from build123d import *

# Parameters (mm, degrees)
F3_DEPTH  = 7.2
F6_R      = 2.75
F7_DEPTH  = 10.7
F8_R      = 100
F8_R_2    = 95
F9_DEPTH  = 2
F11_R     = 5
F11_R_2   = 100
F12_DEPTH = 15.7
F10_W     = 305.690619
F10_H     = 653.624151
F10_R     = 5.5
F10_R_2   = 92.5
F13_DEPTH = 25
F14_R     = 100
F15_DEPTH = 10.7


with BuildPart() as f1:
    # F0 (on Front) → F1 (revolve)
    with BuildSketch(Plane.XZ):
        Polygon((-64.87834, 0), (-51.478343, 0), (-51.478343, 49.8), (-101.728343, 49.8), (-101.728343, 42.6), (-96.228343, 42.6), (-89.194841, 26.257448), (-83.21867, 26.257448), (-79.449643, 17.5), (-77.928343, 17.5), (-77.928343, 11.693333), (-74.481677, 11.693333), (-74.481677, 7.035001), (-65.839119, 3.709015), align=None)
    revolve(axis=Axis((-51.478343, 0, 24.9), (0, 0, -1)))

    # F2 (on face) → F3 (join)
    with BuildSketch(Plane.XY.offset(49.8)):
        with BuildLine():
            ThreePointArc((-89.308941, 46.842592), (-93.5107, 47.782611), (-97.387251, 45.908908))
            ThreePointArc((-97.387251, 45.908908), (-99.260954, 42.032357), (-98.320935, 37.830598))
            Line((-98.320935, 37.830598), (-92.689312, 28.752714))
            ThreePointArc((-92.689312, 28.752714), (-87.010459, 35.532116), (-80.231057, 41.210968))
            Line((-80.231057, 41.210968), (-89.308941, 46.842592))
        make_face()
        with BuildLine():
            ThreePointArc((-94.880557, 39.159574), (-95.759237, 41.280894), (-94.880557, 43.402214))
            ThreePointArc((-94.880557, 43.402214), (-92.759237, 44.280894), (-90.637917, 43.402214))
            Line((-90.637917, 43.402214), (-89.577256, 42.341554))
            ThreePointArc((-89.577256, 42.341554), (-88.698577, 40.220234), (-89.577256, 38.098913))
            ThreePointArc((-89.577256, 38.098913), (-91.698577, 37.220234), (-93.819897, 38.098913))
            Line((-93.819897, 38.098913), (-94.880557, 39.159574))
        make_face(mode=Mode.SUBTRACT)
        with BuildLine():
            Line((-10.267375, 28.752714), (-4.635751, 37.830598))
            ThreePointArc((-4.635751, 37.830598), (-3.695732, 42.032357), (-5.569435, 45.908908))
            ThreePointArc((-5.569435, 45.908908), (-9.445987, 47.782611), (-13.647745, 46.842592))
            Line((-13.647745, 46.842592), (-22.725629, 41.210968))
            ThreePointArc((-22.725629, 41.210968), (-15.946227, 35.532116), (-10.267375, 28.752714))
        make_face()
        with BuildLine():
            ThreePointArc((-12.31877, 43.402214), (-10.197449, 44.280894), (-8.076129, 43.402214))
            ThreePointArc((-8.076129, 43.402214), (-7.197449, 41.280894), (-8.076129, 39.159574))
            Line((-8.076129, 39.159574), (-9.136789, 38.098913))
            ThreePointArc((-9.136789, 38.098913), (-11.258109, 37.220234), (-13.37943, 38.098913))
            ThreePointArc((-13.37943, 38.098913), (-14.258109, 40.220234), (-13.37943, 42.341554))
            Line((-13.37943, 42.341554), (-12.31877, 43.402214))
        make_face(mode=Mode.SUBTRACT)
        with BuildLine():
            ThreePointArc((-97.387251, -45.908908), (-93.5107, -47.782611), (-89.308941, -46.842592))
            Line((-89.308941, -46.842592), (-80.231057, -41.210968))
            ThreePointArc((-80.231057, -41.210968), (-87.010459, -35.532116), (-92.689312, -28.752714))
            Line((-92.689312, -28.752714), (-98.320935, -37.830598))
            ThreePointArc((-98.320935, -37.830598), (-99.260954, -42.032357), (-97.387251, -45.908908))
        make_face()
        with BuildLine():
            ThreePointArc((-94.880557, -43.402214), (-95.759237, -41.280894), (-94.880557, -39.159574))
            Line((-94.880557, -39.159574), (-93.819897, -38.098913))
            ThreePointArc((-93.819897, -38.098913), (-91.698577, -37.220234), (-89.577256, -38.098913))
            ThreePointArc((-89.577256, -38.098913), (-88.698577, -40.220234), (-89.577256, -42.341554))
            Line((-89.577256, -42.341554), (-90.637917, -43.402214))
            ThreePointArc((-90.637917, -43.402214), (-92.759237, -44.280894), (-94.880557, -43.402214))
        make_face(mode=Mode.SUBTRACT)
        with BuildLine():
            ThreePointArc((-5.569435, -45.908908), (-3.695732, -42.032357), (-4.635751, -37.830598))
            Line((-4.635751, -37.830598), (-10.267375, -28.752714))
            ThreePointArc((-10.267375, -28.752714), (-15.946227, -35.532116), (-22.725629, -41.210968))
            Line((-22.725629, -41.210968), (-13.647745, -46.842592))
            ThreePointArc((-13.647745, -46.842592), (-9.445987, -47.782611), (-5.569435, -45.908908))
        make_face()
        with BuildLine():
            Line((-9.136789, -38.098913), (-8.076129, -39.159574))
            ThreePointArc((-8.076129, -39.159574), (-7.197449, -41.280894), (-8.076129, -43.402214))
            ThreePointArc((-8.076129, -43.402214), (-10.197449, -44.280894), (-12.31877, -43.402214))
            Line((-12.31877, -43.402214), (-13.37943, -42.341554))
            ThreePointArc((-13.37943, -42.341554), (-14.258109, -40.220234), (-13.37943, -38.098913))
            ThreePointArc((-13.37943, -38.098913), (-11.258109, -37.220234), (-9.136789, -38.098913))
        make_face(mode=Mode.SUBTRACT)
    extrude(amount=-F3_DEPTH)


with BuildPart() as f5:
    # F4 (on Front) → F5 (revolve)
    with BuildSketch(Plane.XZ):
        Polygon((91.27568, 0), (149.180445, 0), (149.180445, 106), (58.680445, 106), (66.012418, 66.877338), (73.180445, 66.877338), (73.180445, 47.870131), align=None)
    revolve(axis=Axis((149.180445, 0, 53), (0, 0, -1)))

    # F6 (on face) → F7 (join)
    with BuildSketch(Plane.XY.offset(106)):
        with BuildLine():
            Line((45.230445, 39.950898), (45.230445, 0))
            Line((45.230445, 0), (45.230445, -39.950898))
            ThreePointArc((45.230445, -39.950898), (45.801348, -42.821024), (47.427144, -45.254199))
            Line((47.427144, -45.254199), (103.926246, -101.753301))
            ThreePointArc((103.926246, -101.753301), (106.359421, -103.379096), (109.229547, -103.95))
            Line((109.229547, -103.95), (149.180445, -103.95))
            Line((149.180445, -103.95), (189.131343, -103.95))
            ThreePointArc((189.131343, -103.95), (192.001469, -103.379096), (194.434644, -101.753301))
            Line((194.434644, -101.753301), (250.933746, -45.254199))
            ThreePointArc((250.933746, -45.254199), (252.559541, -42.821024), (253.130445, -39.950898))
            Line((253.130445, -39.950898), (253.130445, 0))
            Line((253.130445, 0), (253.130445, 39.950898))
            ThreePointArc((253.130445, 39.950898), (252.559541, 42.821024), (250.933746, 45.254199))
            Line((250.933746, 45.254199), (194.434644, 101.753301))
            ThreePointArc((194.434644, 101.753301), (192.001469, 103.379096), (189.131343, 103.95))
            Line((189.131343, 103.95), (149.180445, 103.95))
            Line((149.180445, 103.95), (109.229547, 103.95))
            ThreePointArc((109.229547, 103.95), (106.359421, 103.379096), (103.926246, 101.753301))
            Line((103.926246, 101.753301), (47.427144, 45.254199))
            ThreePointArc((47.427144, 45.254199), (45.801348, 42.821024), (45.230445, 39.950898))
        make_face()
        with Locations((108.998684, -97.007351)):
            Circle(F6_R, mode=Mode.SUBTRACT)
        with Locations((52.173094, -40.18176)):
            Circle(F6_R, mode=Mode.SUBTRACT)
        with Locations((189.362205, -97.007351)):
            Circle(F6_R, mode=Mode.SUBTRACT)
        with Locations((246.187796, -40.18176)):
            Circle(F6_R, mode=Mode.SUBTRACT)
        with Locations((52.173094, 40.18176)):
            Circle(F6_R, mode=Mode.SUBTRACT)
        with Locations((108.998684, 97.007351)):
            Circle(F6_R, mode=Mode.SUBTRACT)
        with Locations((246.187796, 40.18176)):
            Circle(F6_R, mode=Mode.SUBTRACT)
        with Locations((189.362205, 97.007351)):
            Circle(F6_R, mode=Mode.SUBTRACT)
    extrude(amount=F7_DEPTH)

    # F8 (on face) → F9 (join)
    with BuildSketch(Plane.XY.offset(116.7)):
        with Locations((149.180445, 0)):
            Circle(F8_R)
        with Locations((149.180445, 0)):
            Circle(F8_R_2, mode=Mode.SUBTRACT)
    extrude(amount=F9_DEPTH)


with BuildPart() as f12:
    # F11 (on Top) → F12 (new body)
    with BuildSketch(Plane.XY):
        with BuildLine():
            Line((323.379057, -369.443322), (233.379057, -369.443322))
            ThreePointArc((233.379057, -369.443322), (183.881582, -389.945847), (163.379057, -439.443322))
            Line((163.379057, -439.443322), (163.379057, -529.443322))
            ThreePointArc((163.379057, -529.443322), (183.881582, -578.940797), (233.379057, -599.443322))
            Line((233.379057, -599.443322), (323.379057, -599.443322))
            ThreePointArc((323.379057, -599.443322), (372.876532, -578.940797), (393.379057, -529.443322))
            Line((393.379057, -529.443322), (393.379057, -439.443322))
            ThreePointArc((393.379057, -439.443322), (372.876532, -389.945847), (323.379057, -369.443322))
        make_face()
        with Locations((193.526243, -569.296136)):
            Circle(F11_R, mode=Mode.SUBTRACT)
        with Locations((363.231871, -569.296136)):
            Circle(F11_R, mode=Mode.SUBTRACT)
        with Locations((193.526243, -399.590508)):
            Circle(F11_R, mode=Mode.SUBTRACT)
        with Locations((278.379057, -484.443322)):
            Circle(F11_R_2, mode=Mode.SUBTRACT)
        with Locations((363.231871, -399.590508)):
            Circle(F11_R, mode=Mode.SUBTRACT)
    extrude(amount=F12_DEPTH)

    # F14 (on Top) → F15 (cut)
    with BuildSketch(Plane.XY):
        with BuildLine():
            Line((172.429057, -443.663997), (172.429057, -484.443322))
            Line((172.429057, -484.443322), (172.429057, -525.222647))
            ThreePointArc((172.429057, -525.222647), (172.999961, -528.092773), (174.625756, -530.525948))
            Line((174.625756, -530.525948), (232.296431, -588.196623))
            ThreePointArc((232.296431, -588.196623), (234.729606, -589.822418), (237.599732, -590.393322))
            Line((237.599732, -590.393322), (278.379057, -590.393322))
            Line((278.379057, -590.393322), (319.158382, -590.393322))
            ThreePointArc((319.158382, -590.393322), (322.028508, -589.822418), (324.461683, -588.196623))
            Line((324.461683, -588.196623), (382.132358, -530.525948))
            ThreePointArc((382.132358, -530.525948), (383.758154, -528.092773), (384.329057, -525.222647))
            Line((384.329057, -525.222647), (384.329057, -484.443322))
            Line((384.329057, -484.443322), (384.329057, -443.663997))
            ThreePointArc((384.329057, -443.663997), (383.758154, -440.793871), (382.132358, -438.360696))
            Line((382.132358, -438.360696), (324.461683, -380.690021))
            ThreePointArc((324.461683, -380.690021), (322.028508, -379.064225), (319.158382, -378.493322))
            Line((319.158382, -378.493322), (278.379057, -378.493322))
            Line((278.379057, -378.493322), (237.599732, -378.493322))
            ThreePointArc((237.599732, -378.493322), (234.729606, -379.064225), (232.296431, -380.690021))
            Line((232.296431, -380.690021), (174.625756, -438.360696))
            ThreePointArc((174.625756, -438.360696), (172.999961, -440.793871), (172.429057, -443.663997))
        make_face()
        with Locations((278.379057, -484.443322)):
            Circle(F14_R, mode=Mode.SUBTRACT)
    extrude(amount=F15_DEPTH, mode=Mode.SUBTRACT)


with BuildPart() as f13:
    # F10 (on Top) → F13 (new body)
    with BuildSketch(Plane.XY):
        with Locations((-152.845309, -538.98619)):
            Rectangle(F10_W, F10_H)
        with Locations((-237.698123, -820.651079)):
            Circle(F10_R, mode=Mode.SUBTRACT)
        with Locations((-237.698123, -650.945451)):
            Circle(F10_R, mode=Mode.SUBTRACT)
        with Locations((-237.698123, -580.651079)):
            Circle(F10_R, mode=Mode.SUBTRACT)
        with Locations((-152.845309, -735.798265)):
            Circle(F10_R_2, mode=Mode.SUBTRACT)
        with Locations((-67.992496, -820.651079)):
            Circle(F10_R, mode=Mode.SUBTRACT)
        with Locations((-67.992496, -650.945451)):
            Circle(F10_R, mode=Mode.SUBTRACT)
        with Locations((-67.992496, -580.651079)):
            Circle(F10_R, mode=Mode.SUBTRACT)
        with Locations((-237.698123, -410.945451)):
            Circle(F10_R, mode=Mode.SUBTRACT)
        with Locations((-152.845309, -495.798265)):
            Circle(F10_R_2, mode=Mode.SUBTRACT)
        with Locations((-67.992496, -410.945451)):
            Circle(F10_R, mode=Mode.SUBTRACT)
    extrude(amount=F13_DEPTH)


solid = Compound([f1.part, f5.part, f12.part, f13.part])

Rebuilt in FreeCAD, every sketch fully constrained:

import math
import FreeCAD as App
import Part
import Sketcher

V = App.Vector


def add_polygon(sketch, points):
    """Adds a closed chain of lines whose ends are joined by coincident constraints."""
    first, n = sketch.GeometryCount, len(points)
    for a, b in zip(points, points[1:] + points[:1]):
        sketch.addGeometry(Part.LineSegment(App.Vector(*a, 0), App.Vector(*b, 0)), False)
    for i in range(n):
        sketch.addConstraint(Sketcher.Constraint("Coincident", first + i, 2, first + (i + 1) % n, 1))

doc = App.newDocument("Part")
body = doc.addObject("PartDesign::Body", "Body")

# Sketch on XZ plane
sketch1 = body.newObject("Sketcher::SketchObject", "Sketch")
sketch1.AttachmentSupport = (doc.getObject("XZ_Plane"), [""])
sketch1.MapMode = "FlatFace"
add_polygon(sketch1, [(-64.9, 0), (-51.5, 0), (-51.5, 49.8), (-101.7, 49.8), (-101.7, 42.6), (-96.2, 42.6), (-89.2, 26.3), (-83.2, 26.3), (-79.4, 17.5), (-77.9, 17.5), (-77.9, 11.7), (-74.5, 11.7), (-74.5, 7), (-65.8, 3.7)])  # lines 0-13
sketch1.addGeometry(Part.LineSegment(V(-51.5, 49.8, 0), V(-51.5, 0, 0)), True)  # axis
sketch1.addConstraint([
    Sketcher.Constraint("Horizontal", 0),
    Sketcher.Constraint("Vertical", 1),
    Sketcher.Constraint("Horizontal", 2),
    Sketcher.Constraint("Vertical", 3),
    Sketcher.Constraint("Horizontal", 4),
    Sketcher.Constraint("Horizontal", 6),
    Sketcher.Constraint("Horizontal", 8),
    Sketcher.Constraint("Vertical", 9),
    Sketcher.Constraint("Horizontal", 10),
    Sketcher.Constraint("Vertical", 11),
    Sketcher.Constraint("Vertical", 14),
    Sketcher.Constraint("Coincident", 14, 1, 1, 2),
    Sketcher.Constraint("PointOnObject", 0, 2, -1),
    Sketcher.Constraint("PointOnObject", 14, 2, -1),
    Sketcher.Constraint("Parallel", 5, 7),
    Sketcher.Constraint("DistanceX", 4, 1, 4, 2, 5.5),
    Sketcher.Constraint("DistanceY", 1, 1, 1, 2, 49.8),
    Sketcher.Constraint("DistanceY", 3, 2, 3, 1, 7.2),
    Sketcher.Constraint("DistanceX", 2, 2, 2, 1, 50.25),
    Sketcher.Constraint("DistanceY", -1, 1, 7, 2, 17.5),
    Sketcher.Constraint("DistanceX", 4, 2, 8, 2, 18.3),
    Sketcher.Constraint("DistanceX", 8, 1, 8, 2, 1.5213),
    Sketcher.Constraint("DistanceY", -1, 1, 11, 2, 7.035001),
    Sketcher.Constraint("DistanceX", 6, 1, 6, 2, 5.976171),
    Sketcher.Constraint("DistanceX", 4, 2, 5, 2, 7.033502),
    Sketcher.Constraint("DistanceX", 0, 1, 0, 2, 13.399997),
    Sketcher.Constraint("DistanceX", 10, 1, 10, 2, 3.446666),
    Sketcher.Constraint("DistanceY", 9, 2, 9, 1, 5.806667),
    Sketcher.Constraint("DistanceX", 5, 2, -1, 1, 89.194841),
    Sketcher.Constraint("DistanceX", 12, 2, -1, 1, 65.839119),
    Sketcher.Constraint("DistanceY", 12, 2, 10, 2, 7.984318),
])
revolution = body.newObject("PartDesign::Revolution", "Revolution")
revolution.Profile = sketch1
revolution.ReferenceAxis = (sketch1, ["Axis0"])
revolution.Angle = 360

# Sketch on XY plane
sketch2 = body.newObject("Sketcher::SketchObject", "Sketch001")
sketch2.AttachmentSupport = (doc.getObject("XY_Plane"), [""])
sketch2.MapMode = "FlatFace"
sketch2.AttachmentOffset = App.Placement(V(0, 0, 49.8), App.Rotation())
sketch2.addGeometry([
    Part.ArcOfCircle(Part.Circle(V(-92.759237, 41.280892, 0), V(0, 0, 1), 6.545002), math.radians(58.185898), math.radians(134.999987)),  # 0
    Part.ArcOfCircle(Part.Circle(V(-92.759235, 41.280894, 0), V(0, 0, 1), 6.545002), math.radians(135.000013), math.radians(211.814102)),  # 1
    Part.LineSegment(V(-98.320935, 37.830598, 0), V(-92.689312, 28.752714, 0)),  # 2
    Part.ArcOfCircle(Part.Circle(V(-51.478366, 0.00002, 0), V(0, 0, 1), 50.24997), math.radians(124.903306), math.radians(145.09669)),  # 3
    Part.LineSegment(V(-80.231057, 41.210968, 0), V(-89.308941, 46.842592, 0)),  # 4
    Part.LineSegment(V(-93.819897, 38.098913, 0), V(-94.880557, 39.159574, 0)),  # 5
    Part.ArcOfCircle(Part.Circle(V(-92.759239, 41.280894, 0), V(0, 0, 1), 2.999998), math.radians(134.999978), math.radians(225.000022)),  # 6
    Part.ArcOfCircle(Part.Circle(V(-92.759237, 41.280896, 0), V(0, 0, 1), 2.999998), math.radians(44.999978), math.radians(135.000022)),  # 7
    Part.LineSegment(V(-90.637917, 43.402214, 0), V(-89.577256, 42.341554, 0)),  # 8
    Part.ArcOfCircle(Part.Circle(V(-91.698579, 40.220233, 0), V(0, 0, 1), 3.000002), math.radians(-44.999967), math.radians(44.999967)),  # 9
    Part.ArcOfCircle(Part.Circle(V(-91.698577, 40.220236, 0), V(0, 0, 1), 3.000002), math.radians(-134.999967), math.radians(-45.000033)),  # 10
    Part.LineSegment(V(-10.267375, 28.752714, 0), V(-4.635751, 37.830598, 0)),  # 11
    Part.ArcOfCircle(Part.Circle(V(-10.197451, 41.280894, 0), V(0, 0, 1), 6.545002), math.radians(-31.814102), math.radians(44.999987)),  # 12
    Part.ArcOfCircle(Part.Circle(V(-10.197449, 41.280891, 0), V(0, 0, 1), 6.545002), math.radians(45.000015), math.radians(121.814099)),  # 13
    Part.LineSegment(V(-13.647745, 46.842592, 0), V(-22.725629, 41.210968, 0)),  # 14
    Part.ArcOfCircle(Part.Circle(V(-51.478303, 0.00004, 0), V(0, 0, 1), 50.249943), math.radians(34.903303), math.radians(55.096697)),  # 15
    Part.LineSegment(V(-13.37943, 42.341554, 0), V(-12.31877, 43.402214, 0)),  # 16
    Part.ArcOfCircle(Part.Circle(V(-10.197449, 41.280894, 0), V(0, 0, 1), 3), math.radians(44.999987), math.radians(135.000013)),  # 17
    Part.ArcOfCircle(Part.Circle(V(-10.197447, 41.280894, 0), V(0, 0, 1), 2.999998), math.radians(-45.000022), math.radians(45.000022)),  # 18
    Part.LineSegment(V(-8.076129, 39.159574, 0), V(-9.136789, 38.098913, 0)),  # 19
    Part.ArcOfCircle(Part.Circle(V(-11.258109, 40.220236, 0), V(0, 0, 1), 3.000002), math.radians(-134.999967), math.radians(-45.000033)),  # 20
    Part.ArcOfCircle(Part.Circle(V(-11.258107, 40.220233, 0), V(0, 0, 1), 3.000002), math.radians(135.000033), math.radians(224.999967)),  # 21
    Part.ArcOfCircle(Part.Circle(V(-92.759237, -41.280892, 0), V(0, 0, 1), 6.545002), math.radians(-134.999987), math.radians(-58.185898)),  # 22
    Part.LineSegment(V(-89.308941, -46.842592, 0), V(-80.231057, -41.210968, 0)),  # 23
    Part.ArcOfCircle(Part.Circle(V(-51.478366, -0.00002, 0), V(0, 0, 1), 50.24997), math.radians(-145.09669), math.radians(-124.903306)),  # 24
    Part.LineSegment(V(-92.689312, -28.752714, 0), V(-98.320935, -37.830598, 0)),  # 25
    Part.ArcOfCircle(Part.Circle(V(-92.759235, -41.280894, 0), V(0, 0, 1), 6.545002), math.radians(148.185898), math.radians(224.999987)),  # 26
    Part.ArcOfCircle(Part.Circle(V(-92.759237, -41.280896, 0), V(0, 0, 1), 2.999998), math.radians(-135.000022), math.radians(-44.999978)),  # 27
    Part.ArcOfCircle(Part.Circle(V(-92.759239, -41.280894, 0), V(0, 0, 1), 2.999998), math.radians(134.999978), math.radians(225.000022)),  # 28
    Part.LineSegment(V(-94.880557, -39.159574, 0), V(-93.819897, -38.098913, 0)),  # 29
    Part.ArcOfCircle(Part.Circle(V(-91.698577, -40.220236, 0), V(0, 0, 1), 3.000002), math.radians(45.000033), math.radians(134.999967)),  # 30
    Part.ArcOfCircle(Part.Circle(V(-91.698579, -40.220233, 0), V(0, 0, 1), 3.000002), math.radians(-44.999967), math.radians(44.999967)),  # 31
    Part.LineSegment(V(-89.577256, -42.341554, 0), V(-90.637917, -43.402214, 0)),  # 32
    Part.ArcOfCircle(Part.Circle(V(-10.197451, -41.280894, 0), V(0, 0, 1), 6.545002), math.radians(-44.999987), math.radians(31.814102)),  # 33
    Part.LineSegment(V(-4.635751, -37.830598, 0), V(-10.267375, -28.752714, 0)),  # 34
    Part.ArcOfCircle(Part.Circle(V(-51.478303, -0.00004, 0), V(0, 0, 1), 50.249943), math.radians(-55.096697), math.radians(-34.903303)),  # 35
    Part.LineSegment(V(-22.725629, -41.210968, 0), V(-13.647745, -46.842592, 0)),  # 36
    Part.ArcOfCircle(Part.Circle(V(-10.197449, -41.280891, 0), V(0, 0, 1), 6.545002), math.radians(-121.814099), math.radians(-45.000015)),  # 37
    Part.ArcOfCircle(Part.Circle(V(-11.258109, -40.220236, 0), V(0, 0, 1), 3.000002), math.radians(45.000033), math.radians(134.999967)),  # 38
    Part.LineSegment(V(-9.136789, -38.098913, 0), V(-8.076129, -39.159574, 0)),  # 39
    Part.ArcOfCircle(Part.Circle(V(-10.197447, -41.280894, 0), V(0, 0, 1), 2.999998), math.radians(-45.000022), math.radians(45.000022)),  # 40
    Part.ArcOfCircle(Part.Circle(V(-10.197449, -41.280894, 0), V(0, 0, 1), 3), math.radians(-135.000013), math.radians(-44.999987)),  # 41
    Part.LineSegment(V(-12.31877, -43.402214, 0), V(-13.37943, -42.341554, 0)),  # 42
    Part.ArcOfCircle(Part.Circle(V(-11.258107, -40.220233, 0), V(0, 0, 1), 3.000002), math.radians(135.000033), math.radians(224.999967)),  # 43
], False)
sketch2.addConstraint([
    Sketcher.Constraint("Tangent", 0, 2, 1, 1),
    Sketcher.Constraint("Tangent", 1, 2, 2, 1),
    Sketcher.Constraint("Coincident", 2, 2, 3, 2),
    Sketcher.Constraint("Coincident", 3, 1, 4, 1),
    Sketcher.Constraint("Tangent", 4, 2, 0, 1),
    Sketcher.Constraint("Tangent", 5, 2, 6, 2),
    Sketcher.Constraint("Tangent", 6, 1, 7, 2),
    Sketcher.Constraint("Tangent", 7, 1, 8, 1),
    Sketcher.Constraint("Tangent", 8, 2, 9, 2),
    Sketcher.Constraint("Tangent", 9, 1, 10, 2),
    Sketcher.Constraint("Tangent", 10, 1, 5, 1),
    Sketcher.Constraint("Tangent", 11, 2, 12, 1),
    Sketcher.Constraint("Tangent", 12, 2, 13, 1),
    Sketcher.Constraint("Tangent", 13, 2, 14, 1),
    Sketcher.Constraint("Coincident", 14, 2, 15, 2),
    Sketcher.Constraint("Coincident", 15, 1, 11, 1),
    Sketcher.Constraint("Tangent", 16, 2, 17, 2),
    Sketcher.Constraint("Tangent", 17, 1, 18, 2),
    Sketcher.Constraint("Tangent", 18, 1, 19, 1),
    Sketcher.Constraint("Tangent", 19, 2, 20, 2),
    Sketcher.Constraint("Tangent", 20, 1, 21, 2),
    Sketcher.Constraint("Tangent", 21, 1, 16, 1),
    Sketcher.Constraint("Tangent", 22, 2, 23, 1),
    Sketcher.Constraint("Coincident", 23, 2, 24, 2),
    Sketcher.Constraint("Coincident", 24, 1, 25, 1),
    Sketcher.Constraint("Tangent", 25, 2, 26, 1),
    Sketcher.Constraint("Tangent", 26, 2, 22, 1),
    Sketcher.Constraint("Tangent", 27, 1, 28, 2),
    Sketcher.Constraint("Tangent", 28, 1, 29, 1),
    Sketcher.Constraint("Tangent", 29, 2, 30, 2),
    Sketcher.Constraint("Tangent", 30, 1, 31, 2),
    Sketcher.Constraint("Tangent", 31, 1, 32, 1),
    Sketcher.Constraint("Tangent", 32, 2, 27, 2),
    Sketcher.Constraint("Tangent", 33, 2, 34, 1),
    Sketcher.Constraint("Coincident", 34, 2, 35, 2),
    Sketcher.Constraint("Coincident", 35, 1, 36, 1),
    Sketcher.Constraint("Tangent", 36, 2, 37, 1),
    Sketcher.Constraint("Tangent", 37, 2, 33, 1),
    Sketcher.Constraint("Tangent", 38, 1, 39, 1),
    Sketcher.Constraint("Tangent", 39, 2, 40, 2),
    Sketcher.Constraint("Tangent", 40, 1, 41, 2),
    Sketcher.Constraint("Tangent", 41, 1, 42, 1),
    Sketcher.Constraint("Tangent", 42, 2, 43, 2),
    Sketcher.Constraint("Tangent", 43, 1, 38, 2),
    Sketcher.Constraint("Coincident", 6, 3, 0, 3),
    Sketcher.Constraint("Coincident", 17, 3, 12, 3),
    Sketcher.Constraint("Coincident", 27, 3, 22, 3),
    Sketcher.Constraint("Coincident", 40, 3, 33, 3),
    Sketcher.Constraint("Equal", 0, 1),
    Sketcher.Constraint("Equal", 6, 7),
    Sketcher.Constraint("Equal", 9, 10),
    Sketcher.Constraint("Equal", 1, 12),
    Sketcher.Constraint("Equal", 12, 13),
    Sketcher.Constraint("Equal", 7, 17),
    Sketcher.Constraint("Equal", 17, 18),
    Sketcher.Constraint("Equal", 10, 20),
    Sketcher.Constraint("Equal", 20, 21),
    Sketcher.Constraint("Equal", 13, 22),
    Sketcher.Constraint("Equal", 3, 24),
    Sketcher.Constraint("Equal", 22, 26),
    Sketcher.Constraint("Equal", 18, 27),
    Sketcher.Constraint("Equal", 27, 28),
    Sketcher.Constraint("Equal", 21, 30),
    Sketcher.Constraint("Equal", 30, 31),
    Sketcher.Constraint("Equal", 26, 33),
    Sketcher.Constraint("Equal", 15, 35),
    Sketcher.Constraint("Equal", 33, 37),
    Sketcher.Constraint("Equal", 31, 38),
    Sketcher.Constraint("Equal", 28, 40),
    Sketcher.Constraint("Equal", 40, 41),
    Sketcher.Constraint("Equal", 38, 43),
    Sketcher.Constraint("Symmetric", 0, 3, 22, 3, -1),
    Sketcher.Constraint("Symmetric", 3, 3, 24, 3, -1),
    Sketcher.Constraint("Symmetric", 9, 3, 30, 3, -1),
    Sketcher.Constraint("Symmetric", 12, 3, 33, 3, -1),
    Sketcher.Constraint("Symmetric", 15, 3, 35, 3, -1),
    Sketcher.Constraint("Symmetric", 20, 3, 38, 3, -1),
    Sketcher.Constraint("Parallel", 5, 8),
    Sketcher.Constraint("Perpendicular", 4, 11),
    Sketcher.Constraint("Perpendicular", 2, 14),
    Sketcher.Constraint("Perpendicular", 8, 16),
    Sketcher.Constraint("Parallel", 14, 23),
    Sketcher.Constraint("Parallel", 11, 25),
    Sketcher.Constraint("Parallel", 19, 29),
    Sketcher.Constraint("Perpendicular", 23, 34),
    Sketcher.Constraint("Perpendicular", 25, 36),
    Sketcher.Constraint("Horizontal", 7, 3, 12, 3),
    Sketcher.Constraint("Horizontal", 10, 3, 20, 3),
    Sketcher.Constraint("Horizontal", 6, 1, 7, 1),
    Sketcher.Constraint("Horizontal", 9, 1, 10, 1),
    Sketcher.Constraint("Horizontal", 1, 2, 11, 2),
    Sketcher.Constraint("Horizontal", 0, 2, 12, 2),
    Sketcher.Constraint("Horizontal", 3, 1, 14, 2),
    Sketcher.Constraint("Horizontal", 2, 2, 15, 1),
    Sketcher.Constraint("Horizontal", 16, 2, 17, 1),
    Sketcher.Constraint("Horizontal", 19, 2, 20, 1),
    Sketcher.Constraint("Horizontal", 29, 2, 30, 1),
    Sketcher.Constraint("Horizontal", 27, 1, 32, 2),
    Sketcher.Constraint("Horizontal", 26, 2, 37, 2),
    Sketcher.Constraint("Horizontal", 32, 2, 40, 1),
    Sketcher.Constraint("Horizontal", 38, 1, 43, 1),
    Sketcher.Constraint("Vertical", 0, 2, 26, 2),
    Sketcher.Constraint("Equal", 2, 4),
    Sketcher.Constraint("Radius", 6, 2.999998),
    Sketcher.Constraint("Radius", 0, 6.545002),
    Sketcher.Constraint("Distance", 5, 1.5),
    Sketcher.Constraint("Radius", 3, 50.24997),
    Sketcher.Constraint("Radius", 15, 50.249943),
    Sketcher.Constraint("DistanceY", -1, 1, 11, 2, 37.830598),
    Sketcher.Constraint("DistanceY", -1, 1, 0, 3, 41.280892),
    Sketcher.Constraint("DistanceX", 6, 3, -1, 1, 92.759239),
    Sketcher.Constraint("DistanceX", 12, 3, -1, 1, 10.197451),
    Sketcher.Constraint("DistanceX", 0, 2, -1, 1, 97.387251),
    Sketcher.Constraint("DistanceX", 2, 2, -1, 1, 92.689312),
])
pad1 = body.newObject("PartDesign::Pad", "Pad")
pad1.Profile = sketch2
pad1.Length = 7.2
pad1.Reversed = True
body2 = doc.addObject("PartDesign::Body", "Body001")

# Sketch on XZ plane
sketch3 = body2.newObject("Sketcher::SketchObject", "Sketch002")
sketch3.AttachmentSupport = (doc.getObject("XZ_Plane001"), [""])
sketch3.MapMode = "FlatFace"
add_polygon(sketch3, [(91, 0), (149, 0), (149, 106), (59, 106), (66, 67), (73, 67), (73, 48)])  # lines 0-6
sketch3.addGeometry(Part.LineSegment(V(149, 106, 0), V(149, 0, 0)), True)  # axis
sketch3.addConstraint([
    Sketcher.Constraint("Horizontal", 0),
    Sketcher.Constraint("Vertical", 1),
    Sketcher.Constraint("Horizontal", 2),
    Sketcher.Constraint("Horizontal", 4),
    Sketcher.Constraint("Vertical", 5),
    Sketcher.Constraint("Vertical", 7),
    Sketcher.Constraint("Coincident", 7, 1, 1, 2),
    Sketcher.Constraint("PointOnObject", 0, 2, -1),
    Sketcher.Constraint("PointOnObject", 7, 2, -1),
    Sketcher.Constraint("DistanceY", 1, 1, 1, 2, 106.0),
    Sketcher.Constraint("DistanceX", 2, 2, 2, 1, 90.5),
    Sketcher.Constraint("DistanceX", 4, 2, 1, 2, 76.0),
    Sketcher.Constraint("Distance", 6, 51.176039),
    Sketcher.Constraint("DistanceX", 0, 1, 0, 2, 57.904765),
    Sketcher.Constraint("DistanceX", 4, 1, 4, 2, 7.168027),
    Sketcher.Constraint("DistanceY", 5, 2, 5, 1, 19.007207),
    Sketcher.Constraint("DistanceX", -1, 1, 6, 2, 91.27568),
])
revolution2 = body2.newObject("PartDesign::Revolution", "Revolution001")
revolution2.Profile = sketch3
revolution2.ReferenceAxis = (sketch3, ["Axis0"])
revolution2.Angle = 360

# Sketch on XY plane
sketch4 = body2.newObject("Sketcher::SketchObject", "Sketch003")
sketch4.AttachmentSupport = (doc.getObject("XY_Plane001"), [""])
sketch4.MapMode = "FlatFace"
sketch4.AttachmentOffset = App.Placement(V(0, 0, 106), App.Rotation())
sketch4.addGeometry([
    Part.LineSegment(V(45.2, 40, 0), V(45.2, -40, 0)),  # 0
    Part.ArcOfCircle(Part.Circle(V(52.7, -40, 0), V(0, 0, 1), 7.5), math.radians(180), math.radians(225)),  # 1
    Part.LineSegment(V(47.4, -45.3, 0), V(103.9, -101.8, 0)),  # 2
    Part.ArcOfCircle(Part.Circle(V(109.2, -96.4, 0), V(0, 0, 1), 7.5), math.radians(-135), math.radians(-90)),  # 3
    Part.LineSegment(V(109.2, -104, 0), V(189.1, -104, 0)),  # 4
    Part.ArcOfCircle(Part.Circle(V(189.1, -96.4, 0), V(0, 0, 1), 7.5), math.radians(-90), math.radians(-45)),  # 5
    Part.LineSegment(V(194.4, -101.8, 0), V(250.9, -45.3, 0)),  # 6
    Part.ArcOfCircle(Part.Circle(V(245.6, -40, 0), V(0, 0, 1), 7.5), math.radians(-45), math.radians(0)),  # 7
    Part.LineSegment(V(253.1, -40, 0), V(253.1, 40, 0)),  # 8
    Part.ArcOfCircle(Part.Circle(V(245.6, 40, 0), V(0, 0, 1), 7.5), math.radians(0), math.radians(45)),  # 9
    Part.LineSegment(V(250.9, 45.3, 0), V(194.4, 101.8, 0)),  # 10
    Part.ArcOfCircle(Part.Circle(V(189.1, 96.4, 0), V(0, 0, 1), 7.5), math.radians(45), math.radians(90)),  # 11
    Part.LineSegment(V(189.1, 104, 0), V(109.2, 104, 0)),  # 12
    Part.ArcOfCircle(Part.Circle(V(109.2, 96.4, 0), V(0, 0, 1), 7.5), math.radians(90), math.radians(135)),  # 13
    Part.LineSegment(V(103.9, 101.8, 0), V(47.4, 45.3, 0)),  # 14
    Part.ArcOfCircle(Part.Circle(V(52.7, 40, 0), V(0, 0, 1), 7.5), math.radians(135), math.radians(180)),  # 15
    Part.Circle(V(109, -97, 0), V(0, 0, 1), 2.8),  # 16
    Part.Circle(V(52.2, -40.2, 0), V(0, 0, 1), 2.8),  # 17
    Part.Circle(V(189.4, -97, 0), V(0, 0, 1), 2.8),  # 18
    Part.Circle(V(246.2, -40.2, 0), V(0, 0, 1), 2.8),  # 19
    Part.Circle(V(52.2, 40.2, 0), V(0, 0, 1), 2.8),  # 20
    Part.Circle(V(109, 97, 0), V(0, 0, 1), 2.8),  # 21
    Part.Circle(V(246.2, 40.2, 0), V(0, 0, 1), 2.8),  # 22
    Part.Circle(V(189.4, 97, 0), V(0, 0, 1), 2.8),  # 23
], False)
sketch4.addConstraint([
    Sketcher.Constraint("Tangent", 0, 2, 1, 1),
    Sketcher.Constraint("Tangent", 1, 2, 2, 1),
    Sketcher.Constraint("Tangent", 2, 2, 3, 1),
    Sketcher.Constraint("Tangent", 3, 2, 4, 1),
    Sketcher.Constraint("Tangent", 4, 2, 5, 1),
    Sketcher.Constraint("Tangent", 5, 2, 6, 1),
    Sketcher.Constraint("Tangent", 6, 2, 7, 1),
    Sketcher.Constraint("Tangent", 7, 2, 8, 1),
    Sketcher.Constraint("Tangent", 8, 2, 9, 1),
    Sketcher.Constraint("Tangent", 9, 2, 10, 1),
    Sketcher.Constraint("Tangent", 10, 2, 11, 1),
    Sketcher.Constraint("Tangent", 11, 2, 12, 1),
    Sketcher.Constraint("Tangent", 12, 2, 13, 1),
    Sketcher.Constraint("Tangent", 13, 2, 14, 1),
    Sketcher.Constraint("Tangent", 14, 2, 15, 1),
    Sketcher.Constraint("Tangent", 15, 2, 0, 1),
    Sketcher.Constraint("Vertical", 0),
    Sketcher.Constraint("Horizontal", 4),
    Sketcher.Constraint("Vertical", 8),
    Sketcher.Constraint("Horizontal", 12),
    Sketcher.Constraint("Equal", 3, 5),
    Sketcher.Constraint("Equal", 5, 7),
    Sketcher.Constraint("Equal", 7, 9),
    Sketcher.Constraint("Equal", 9, 11),
    Sketcher.Constraint("Equal", 11, 13),
    Sketcher.Constraint("Equal", 1, 15),
    Sketcher.Constraint("Equal", 16, 17),
    Sketcher.Constraint("Equal", 17, 18),
    Sketcher.Constraint("Equal", 18, 19),
    Sketcher.Constraint("Equal", 19, 20),
    Sketcher.Constraint("Equal", 20, 21),
    Sketcher.Constraint("Equal", 21, 22),
    Sketcher.Constraint("Equal", 22, 23),
    Sketcher.Constraint("Symmetric", 5, 3, 11, 3, -1),
    Sketcher.Constraint("Symmetric", 17, 3, 20, 3, -1),
    Sketcher.Constraint("Symmetric", 16, 3, 21, 3, -1),
    Sketcher.Constraint("Symmetric", 19, 3, 22, 3, -1),
    Sketcher.Constraint("Symmetric", 18, 3, 23, 3, -1),
    Sketcher.Constraint("Symmetric", 2, 2, 13, 2, -1),
    Sketcher.Constraint("Perpendicular", 2, 6),
    Sketcher.Constraint("Perpendicular", 6, 10),
    Sketcher.Constraint("Perpendicular", 10, 14),
    Sketcher.Constraint("Horizontal", 16, 3, 18, 3),
    Sketcher.Constraint("Horizontal", 17, 3, 19, 3),
    Sketcher.Constraint("Horizontal", 1, 2, 6, 2),
    Sketcher.Constraint("Horizontal", 0, 2, 7, 2),
    Sketcher.Constraint("Equal", 12, 0),
    Sketcher.Constraint("Diameter", 16, 5.5),
    Sketcher.Constraint("DistanceX", 1, 3, 7, 3, 192.9),
    Sketcher.Constraint("DistanceY", 3, 2, -1, 1, 103.95),
    Sketcher.Constraint("DistanceY", 1, 3, -1, 1, 39.950901),
    Sketcher.Constraint("DistanceX", -1, 1, 1, 3, 52.730439),
    Sketcher.Constraint("DistanceY", 16, 3, -1, 1, 97.007351),
    Sketcher.Constraint("DistanceY", 17, 3, -1, 1, 40.18176),
    Sketcher.Constraint("DistanceX", 17, 3, 16, 3, 56.82559),
    Sketcher.Constraint("DistanceX", 16, 3, 18, 3, 80.363521),
    Sketcher.Constraint("DistanceX", 18, 3, 19, 3, 56.825591),
    Sketcher.Constraint("DistanceX", 0, 2, 17, 3, 6.942649),
])
pad2 = body2.newObject("PartDesign::Pad", "Pad001")
pad2.Profile = sketch4
pad2.Length = 10.7

# Sketch on XY plane
sketch5 = body2.newObject("Sketcher::SketchObject", "Sketch004")
sketch5.AttachmentSupport = (doc.getObject("XY_Plane001"), [""])
sketch5.MapMode = "FlatFace"
sketch5.AttachmentOffset = App.Placement(V(0, 0, 116.7), App.Rotation())
sketch5.addGeometry([
    Part.Circle(V(149, 0, 0), V(0, 0, 1), 100),
    Part.Circle(V(149, 0, 0), V(0, 0, 1), 95),
], False)
sketch5.addConstraint([
    Sketcher.Constraint("Coincident", 1, 3, 0, 3),
    Sketcher.Constraint("PointOnObject", 0, 3, -1),
    Sketcher.Constraint("Diameter", 0, 200.0),
    Sketcher.Constraint("Diameter", 1, 190.0),
    Sketcher.Constraint("DistanceX", -1, 1, 0, 3, 149.180445),
])
pad3 = body2.newObject("PartDesign::Pad", "Pad002")
pad3.Profile = sketch5
pad3.Length = 2
body3 = doc.addObject("PartDesign::Body", "Body002")

# Sketch on XY plane
sketch6 = body3.newObject("Sketcher::SketchObject", "Sketch005")
sketch6.AttachmentSupport = (doc.getObject("XY_Plane002"), [""])
sketch6.MapMode = "FlatFace"
sketch6.addGeometry([
    Part.LineSegment(V(323, -369, 0), V(233, -369, 0)),  # 0
    Part.ArcOfCircle(Part.Circle(V(233, -439, 0), V(0, 0, 1), 70), math.radians(90), math.radians(180)),  # 1
    Part.LineSegment(V(163, -439, 0), V(163, -529, 0)),  # 2
    Part.ArcOfCircle(Part.Circle(V(233, -529, 0), V(0, 0, 1), 70), math.radians(180), math.radians(270)),  # 3
    Part.LineSegment(V(233, -599, 0), V(323, -599, 0)),  # 4
    Part.ArcOfCircle(Part.Circle(V(323, -529, 0), V(0, 0, 1), 70), math.radians(-90), math.radians(0)),  # 5
    Part.LineSegment(V(393, -529, 0), V(393, -439, 0)),  # 6
    Part.ArcOfCircle(Part.Circle(V(323, -439, 0), V(0, 0, 1), 70), math.radians(0), math.radians(90)),  # 7
    Part.Circle(V(194, -569, 0), V(0, 0, 1), 5),  # 8
    Part.Circle(V(363, -569, 0), V(0, 0, 1), 5),  # 9
    Part.Circle(V(194, -400, 0), V(0, 0, 1), 5),  # 10
    Part.Circle(V(278, -484, 0), V(0, 0, 1), 100),  # 11
    Part.Circle(V(363, -400, 0), V(0, 0, 1), 5),  # 12
], False)
sketch6.addConstraint([
    Sketcher.Constraint("Tangent", 0, 2, 1, 1),
    Sketcher.Constraint("Tangent", 1, 2, 2, 1),
    Sketcher.Constraint("Tangent", 2, 2, 3, 1),
    Sketcher.Constraint("Tangent", 3, 2, 4, 1),
    Sketcher.Constraint("Tangent", 4, 2, 5, 1),
    Sketcher.Constraint("Tangent", 5, 2, 6, 1),
    Sketcher.Constraint("Tangent", 6, 2, 7, 1),
    Sketcher.Constraint("Tangent", 7, 2, 0, 1),
    Sketcher.Constraint("Horizontal", 0),
    Sketcher.Constraint("Vertical", 2),
    Sketcher.Constraint("Horizontal", 4),
    Sketcher.Constraint("Vertical", 6),
    Sketcher.Constraint("Equal", 1, 3),
    Sketcher.Constraint("Equal", 3, 5),
    Sketcher.Constraint("Equal", 5, 7),
    Sketcher.Constraint("Equal", 8, 9),
    Sketcher.Constraint("Equal", 9, 10),
    Sketcher.Constraint("Equal", 10, 12),
    Sketcher.Constraint("Horizontal", 8, 3, 9, 3),
    Sketcher.Constraint("Horizontal", 10, 3, 12, 3),
    Sketcher.Constraint("Vertical", 8, 3, 10, 3),
    Sketcher.Constraint("Vertical", 9, 3, 12, 3),
    Sketcher.Constraint("Equal", 4, 2),
    Sketcher.Constraint("Diameter", 8, 10.0),
    Sketcher.Constraint("Diameter", 11, 200.0),
    Sketcher.Constraint("Radius", 1, 69.999999),
    Sketcher.Constraint("DistanceX", 0, 2, 0, 1, 90.0),
    Sketcher.Constraint("DistanceX", 3, 3, 11, 3, 45.000001),
    Sketcher.Constraint("DistanceY", 3, 3, 11, 3, 45.000001),
    Sketcher.Constraint("DistanceY", 1, 3, -1, 1, 439.443321),
    Sketcher.Constraint("DistanceX", -1, 1, 5, 3, 323.379058),
    Sketcher.Constraint("DistanceX", -1, 1, 9, 3, 363.231871),
    Sketcher.Constraint("DistanceY", 10, 3, -1, 1, 399.590508),
    Sketcher.Constraint("DistanceX", 8, 3, 9, 3, 169.705628),
    Sketcher.Constraint("DistanceY", 8, 3, 10, 3, 169.705628),
])
pad4 = body3.newObject("PartDesign::Pad", "Pad003")
pad4.Profile = sketch6
pad4.Length = 15.7

# Sketch on XY plane
sketch7 = body3.newObject("Sketcher::SketchObject", "Sketch006")
sketch7.AttachmentSupport = (doc.getObject("XY_Plane002"), [""])
sketch7.MapMode = "FlatFace"
sketch7.addGeometry([
    Part.LineSegment(V(172, -444, 0), V(172, -525, 0)),  # 0
    Part.ArcOfCircle(Part.Circle(V(180, -525, 0), V(0, 0, 1), 8), math.radians(-180), math.radians(-135)),  # 1
    Part.LineSegment(V(175, -531, 0), V(232, -588, 0)),  # 2
    Part.ArcOfCircle(Part.Circle(V(238, -583, 0), V(0, 0, 1), 8), math.radians(-135), math.radians(-90)),  # 3
    Part.LineSegment(V(238, -590, 0), V(319, -590, 0)),  # 4
    Part.ArcOfCircle(Part.Circle(V(319, -583, 0), V(0, 0, 1), 8), math.radians(-90), math.radians(-45)),  # 5
    Part.LineSegment(V(324, -588, 0), V(382, -531, 0)),  # 6
    Part.ArcOfCircle(Part.Circle(V(377, -525, 0), V(0, 0, 1), 7), math.radians(-45), math.radians(0)),  # 7
    Part.LineSegment(V(384, -525, 0), V(384, -444, 0)),  # 8
    Part.ArcOfCircle(Part.Circle(V(377, -444, 0), V(0, 0, 1), 7), math.radians(0), math.radians(45)),  # 9
    Part.LineSegment(V(382, -438, 0), V(324, -381, 0)),  # 10
    Part.ArcOfCircle(Part.Circle(V(319, -386, 0), V(0, 0, 1), 7), math.radians(45), math.radians(90)),  # 11
    Part.LineSegment(V(319, -378, 0), V(238, -378, 0)),  # 12
    Part.ArcOfCircle(Part.Circle(V(238, -386, 0), V(0, 0, 1), 7), math.radians(90), math.radians(135)),  # 13
    Part.LineSegment(V(232, -381, 0), V(175, -438, 0)),  # 14
    Part.ArcOfCircle(Part.Circle(V(180, -444, 0), V(0, 0, 1), 8), math.radians(135), math.radians(180)),  # 15
    Part.Circle(V(278, -484, 0), V(0, 0, 1), 100),  # 16
], False)
sketch7.addConstraint([
    Sketcher.Constraint("Tangent", 0, 2, 1, 1),
    Sketcher.Constraint("Tangent", 1, 2, 2, 1),
    Sketcher.Constraint("Tangent", 2, 2, 3, 1),
    Sketcher.Constraint("Tangent", 3, 2, 4, 1),
    Sketcher.Constraint("Tangent", 4, 2, 5, 1),
    Sketcher.Constraint("Tangent", 5, 2, 6, 1),
    Sketcher.Constraint("Tangent", 6, 2, 7, 1),
    Sketcher.Constraint("Tangent", 7, 2, 8, 1),
    Sketcher.Constraint("Tangent", 8, 2, 9, 1),
    Sketcher.Constraint("Tangent", 9, 2, 10, 1),
    Sketcher.Constraint("Tangent", 10, 2, 11, 1),
    Sketcher.Constraint("Tangent", 11, 2, 12, 1),
    Sketcher.Constraint("Tangent", 12, 2, 13, 1),
    Sketcher.Constraint("Tangent", 13, 2, 14, 1),
    Sketcher.Constraint("Tangent", 14, 2, 15, 1),
    Sketcher.Constraint("Tangent", 15, 2, 0, 1),
    Sketcher.Constraint("Vertical", 0),
    Sketcher.Constraint("Horizontal", 4),
    Sketcher.Constraint("Vertical", 8),
    Sketcher.Constraint("Horizontal", 12),
    Sketcher.Constraint("Equal", 1, 3),
    Sketcher.Constraint("Equal", 3, 5),
    Sketcher.Constraint("Equal", 7, 9),
    Sketcher.Constraint("Equal", 9, 11),
    Sketcher.Constraint("Equal", 11, 13),
    Sketcher.Constraint("Equal", 5, 15),
    Sketcher.Constraint("Perpendicular", 2, 6),
    Sketcher.Constraint("Perpendicular", 6, 10),
    Sketcher.Constraint("Perpendicular", 10, 14),
    Sketcher.Constraint("Horizontal", 2, 2, 5, 2),
    Sketcher.Constraint("Horizontal", 1, 2, 6, 2),
    Sketcher.Constraint("Horizontal", 0, 2, 7, 2),
    Sketcher.Constraint("Horizontal", 9, 2, 14, 2),
    Sketcher.Constraint("Vertical", 5, 2, 10, 2),
    Sketcher.Constraint("Equal", 12, 0),
    Sketcher.Constraint("Diameter", 16, 200.0),
    Sketcher.Constraint("DistanceX", 1, 3, 7, 3, 196.9),
    Sketcher.Constraint("DistanceX", 0, 2, 16, 3, 105.95),
    Sketcher.Constraint("DistanceY", 15, 3, -1, 1, 443.663999),
    Sketcher.Constraint("Radius", 1, 7.500006),
    Sketcher.Constraint("DistanceX", 4, 1, 4, 2, 81.55865),
    Sketcher.Constraint("DistanceX", -1, 1, 5, 3, 319.15838),
    Sketcher.Constraint("DistanceY", 16, 3, -1, 1, 484.443322),
])
pocket1 = body3.newObject("PartDesign::Pocket", "Pocket")
pocket1.Profile = sketch7
pocket1.Length = 10.7
pocket1.Reversed = True
body4 = doc.addObject("PartDesign::Body", "Body003")

# Sketch on XY plane
sketch8 = body4.newObject("Sketcher::SketchObject", "Sketch007")
sketch8.AttachmentSupport = (doc.getObject("XY_Plane003"), [""])
sketch8.MapMode = "FlatFace"
add_polygon(sketch8, [(-306, -212), (-306, -866), (0, -866), (0, -212)])  # lines 0-3
sketch8.addGeometry(Part.Circle(V(-238, -821, 0), V(0, 0, 1), 6), False)  # 4
sketch8.addGeometry(Part.Circle(V(-238, -651, 0), V(0, 0, 1), 6), False)  # 5
sketch8.addGeometry(Part.Circle(V(-153, -736, 0), V(0, 0, 1), 92), False)  # 6
sketch8.addGeometry(Part.Circle(V(-68, -821, 0), V(0, 0, 1), 6), False)  # 7
sketch8.addGeometry(Part.Circle(V(-68, -651, 0), V(0, 0, 1), 6), False)  # 8
sketch8.addGeometry(Part.Circle(V(-238, -581, 0), V(0, 0, 1), 6), False)  # 9
sketch8.addGeometry(Part.Circle(V(-238, -411, 0), V(0, 0, 1), 6), False)  # 10
sketch8.addGeometry(Part.Circle(V(-68, -581, 0), V(0, 0, 1), 6), False)  # 11
sketch8.addGeometry(Part.Circle(V(-153, -496, 0), V(0, 0, 1), 92), False)  # 12
sketch8.addGeometry(Part.Circle(V(-68, -411, 0), V(0, 0, 1), 6), False)  # 13
sketch8.addConstraint([
    Sketcher.Constraint("Vertical", 0),
    Sketcher.Constraint("Horizontal", 1),
    Sketcher.Constraint("Vertical", 2),
    Sketcher.Constraint("Horizontal", 3),
    Sketcher.Constraint("Equal", 4, 5),
    Sketcher.Constraint("Equal", 5, 7),
    Sketcher.Constraint("Equal", 7, 8),
    Sketcher.Constraint("Equal", 8, 9),
    Sketcher.Constraint("Equal", 9, 10),
    Sketcher.Constraint("Equal", 10, 11),
    Sketcher.Constraint("Equal", 6, 12),
    Sketcher.Constraint("Equal", 11, 13),
    Sketcher.Constraint("PointOnObject", 1, 2, -2),
    Sketcher.Constraint("Horizontal", 4, 3, 7, 3),
    Sketcher.Constraint("Horizontal", 5, 3, 8, 3),
    Sketcher.Constraint("Horizontal", 9, 3, 11, 3),
    Sketcher.Constraint("Horizontal", 10, 3, 13, 3),
    Sketcher.Constraint("Vertical", 4, 3, 5, 3),
    Sketcher.Constraint("Vertical", 7, 3, 8, 3),
    Sketcher.Constraint("Vertical", 5, 3, 9, 3),
    Sketcher.Constraint("Vertical", 9, 3, 10, 3),
    Sketcher.Constraint("Vertical", 8, 3, 11, 3),
    Sketcher.Constraint("Vertical", 6, 3, 12, 3),
    Sketcher.Constraint("Vertical", 11, 3, 13, 3),
    Sketcher.Constraint("Diameter", 4, 11.0),
    Sketcher.Constraint("Diameter", 6, 185.0),
    Sketcher.Constraint("DistanceY", 4, 3, 9, 3, 240.0),
    Sketcher.Constraint("DistanceY", 5, 3, 10, 3, 240.0),
    Sketcher.Constraint("DistanceY", 0, 2, 6, 3, 130.0),
    Sketcher.Constraint("DistanceX", 1, 1, 1, 2, 305.690619),
    Sketcher.Constraint("DistanceY", 0, 2, 0, 1, 653.624151),
    Sketcher.Constraint("DistanceY", 4, 3, -1, 1, 820.651079),
    Sketcher.Constraint("DistanceY", 5, 3, -1, 1, 650.945451),
    Sketcher.Constraint("DistanceX", 6, 3, -1, 1, 152.845309),
    Sketcher.Constraint("DistanceY", 12, 3, 2, 2, 283.624151),
    Sketcher.Constraint("DistanceX", 4, 3, -1, 1, 237.698123),
    Sketcher.Constraint("DistanceY", 6, 3, -1, 1, 735.798265),
    Sketcher.Constraint("DistanceX", 7, 3, -1, 1, 67.992496),
])
pad5 = body4.newObject("PartDesign::Pad", "Pad004")
pad5.Profile = sketch8
pad5.Length = 25

doc.recompute()
